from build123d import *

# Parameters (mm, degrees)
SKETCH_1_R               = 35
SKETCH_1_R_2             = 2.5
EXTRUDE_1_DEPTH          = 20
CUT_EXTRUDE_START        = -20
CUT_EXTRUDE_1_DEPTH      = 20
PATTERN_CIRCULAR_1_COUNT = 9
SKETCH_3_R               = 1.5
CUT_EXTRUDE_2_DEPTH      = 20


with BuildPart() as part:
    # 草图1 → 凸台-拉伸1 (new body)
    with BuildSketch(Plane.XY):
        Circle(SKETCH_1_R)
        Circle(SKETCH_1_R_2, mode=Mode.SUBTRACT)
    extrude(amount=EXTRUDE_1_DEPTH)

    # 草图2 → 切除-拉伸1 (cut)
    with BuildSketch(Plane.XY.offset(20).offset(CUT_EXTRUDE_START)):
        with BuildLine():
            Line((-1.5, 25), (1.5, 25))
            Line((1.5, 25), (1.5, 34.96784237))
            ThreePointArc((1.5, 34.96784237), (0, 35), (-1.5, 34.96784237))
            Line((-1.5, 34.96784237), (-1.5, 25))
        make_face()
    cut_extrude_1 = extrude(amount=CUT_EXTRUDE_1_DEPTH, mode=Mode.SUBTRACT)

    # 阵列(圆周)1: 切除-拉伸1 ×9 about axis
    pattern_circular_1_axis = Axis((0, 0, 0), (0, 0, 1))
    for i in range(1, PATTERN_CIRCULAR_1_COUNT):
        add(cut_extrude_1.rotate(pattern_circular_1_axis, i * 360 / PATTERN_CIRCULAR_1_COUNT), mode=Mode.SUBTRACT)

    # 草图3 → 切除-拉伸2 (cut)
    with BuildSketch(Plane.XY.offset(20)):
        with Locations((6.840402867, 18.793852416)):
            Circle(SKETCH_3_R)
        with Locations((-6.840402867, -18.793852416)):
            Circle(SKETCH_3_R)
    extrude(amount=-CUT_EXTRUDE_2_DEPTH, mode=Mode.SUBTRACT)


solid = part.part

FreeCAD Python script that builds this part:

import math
import FreeCAD as App
import Part
import Sketcher

V = App.Vector

doc = App.newDocument("Part")
params = doc.addObject("Spreadsheet::Sheet", "Params")
for row, (alias, value) in enumerate([
    ("sketch1_diameter", "70 mm"),
    ("sketch1_diameter2", "5 mm"),
    ("pad1_length", "20 mm"),
    ("sketch2_radius", "35 mm"),
    ("sketch2_width", "3 mm"),
    ("pocket1_length", "20 mm"),
    ("sketch3_diameter", "3 mm"),
    ("pocket2_length", "20 mm"),
], start=1):
    params.set(f"A{row}", alias)
    params.set(f"B{row}", "=" + value)
    params.setAlias(f"B{row}", alias)

body = doc.addObject("PartDesign::Body", "Body")

sketch1 = body.newObject("Sketcher::SketchObject", "Sketch")
sketch1.AttachmentSupport = (doc.getObject("XY_Plane"), [""])
sketch1.MapMode = "FlatFace"
sketch1.addGeometry(Part.Circle(V(0, 0, 0), V(0, 0, 1), 35), False)
sketch1.addGeometry(Part.Circle(V(0, 0, 0), V(0, 0, 1), 2.5), False)
sketch1.addConstraint(Sketcher.Constraint("Coincident", 0, 3, -1, 1))
sketch1.addConstraint(Sketcher.Constraint("Coincident", 1, 3, -1, 1))
sketch1.addConstraint(Sketcher.Constraint("Diameter", 0, 70.0))
sketch1.addConstraint(Sketcher.Constraint("Diameter", 1, 5.0))
sketch1.setExpression("Constraints[2]", "Params.sketch1_diameter")
sketch1.setExpression("Constraints[3]", "Params.sketch1_diameter2")
pad1 = body.newObject("PartDesign::Pad", "Pad")
pad1.Profile = sketch1
pad1.setExpression("Length", "Params.pad1_length")

sketch2 = body.newObject("Sketcher::SketchObject", "Sketch001")
sketch2.AttachmentSupport = (doc.getObject("XY_Plane"), [""])
sketch2.MapMode = "FlatFace"
sketch2.addGeometry(Part.LineSegment(V(-1.5, 25, 0), V(1.5, 25, 0)), False)
sketch2.addGeometry(Part.LineSegment(V(1.5, 25, 0), V(1.5, 35, 0)), False)
sketch2.addGeometry(Part.ArcOfCircle(Part.Circle(V(0, 0, 0), V(0, 0, 1), 35), math.radians(87.54), math.radians(92.46)), False)
sketch2.addGeometry(Part.LineSegment(V(-1.5, 35, 0), V(-1.5, 25, 0)), False)
sketch2.addConstraint(Sketcher.Constraint("Coincident", 0, 2, 1, 1))
sketch2.addConstraint(Sketcher.Constraint("Coincident", 1, 2, 2, 1))
sketch2.addConstraint(Sketcher.Constraint("Coincident", 2, 2, 3, 1))
sketch2.addConstraint(Sketcher.Constraint("Coincident", 3, 2, 0, 1))
sketch2.addConstraint(Sketcher.Constraint("Horizontal", 0))
sketch2.addConstraint(Sketcher.Constraint("Vertical", 1))
sketch2.addConstraint(Sketcher.Constraint("Vertical", 3))
sketch2.addConstraint(Sketcher.Constraint("Coincident", 2, 3, -1, 1))
sketch2.addConstraint(Sketcher.Constraint("Horizontal", 1, 2, 2, 2))
sketch2.addConstraint(Sketcher.Constraint("Radius", 2, 35.0))
sketch2.addConstraint(Sketcher.Constraint("DistanceX", 0, 1, 0, 2, 3.0))
sketch2.addConstraint(Sketcher.Constraint("DistanceY", -1, 1, 0, 2, 25.0))
sketch2.setExpression("Constraints[9]", "Params.sketch2_radius")
sketch2.setExpression("Constraints[10]", "Params.sketch2_width")
pocket1 = body.newObject("PartDesign::Pocket", "Pocket")
pocket1.Profile = sketch2
pocket1.setExpression("Length", "Params.pocket1_length")
pocket1.Reversed = True
doc.recompute()

polarpattern = body.newObject("PartDesign::PolarPattern", "PolarPattern")
polarpattern.Originals = [pocket1]
polarpattern.Axis = (doc.getObject("Z_Axis"), [""])
polarpattern.Angle = 360
polarpattern.Occurrences = 9
body.Tip = polarpattern

sketch3 = body.newObject("Sketcher::SketchObject", "Sketch002")
sketch3.AttachmentSupport = (doc.getObject("XY_Plane"), [""])
sketch3.MapMode = "FlatFace"
sketch3.AttachmentOffset = App.Placement(V(0, 0, 20), App.Rotation())
sketch3.addGeometry(Part.Circle(V(6.8, 18.8, 0), V(0, 0, 1), 1.5), False)
sketch3.addGeometry(Part.Circle(V(-6.8, -18.8, 0), V(0, 0, 1), 1.5), False)
sketch3.addConstraint(Sketcher.Constraint("Equal", 0, 1))
sketch3.addConstraint(Sketcher.Constraint("Symmetric", 0, 3, 1, 3, -1, 1))
sketch3.addConstraint(Sketcher.Constraint("Diameter", 0, 3.0))
sketch3.addConstraint(Sketcher.Constraint("DistanceX", -1, 1, 0, 3, 6.840403))
sketch3.addConstraint(Sketcher.Constraint("DistanceY", -1, 1, 0, 3, 18.793852))
sketch3.setExpression("Constraints[2]", "Params.sketch3_diameter")
pocket2 = body.newObject("PartDesign::Pocket", "Pocket001")
pocket2.Profile = sketch3
pocket2.setExpression("Length", "Params.pocket2_length")

doc.recompute()
